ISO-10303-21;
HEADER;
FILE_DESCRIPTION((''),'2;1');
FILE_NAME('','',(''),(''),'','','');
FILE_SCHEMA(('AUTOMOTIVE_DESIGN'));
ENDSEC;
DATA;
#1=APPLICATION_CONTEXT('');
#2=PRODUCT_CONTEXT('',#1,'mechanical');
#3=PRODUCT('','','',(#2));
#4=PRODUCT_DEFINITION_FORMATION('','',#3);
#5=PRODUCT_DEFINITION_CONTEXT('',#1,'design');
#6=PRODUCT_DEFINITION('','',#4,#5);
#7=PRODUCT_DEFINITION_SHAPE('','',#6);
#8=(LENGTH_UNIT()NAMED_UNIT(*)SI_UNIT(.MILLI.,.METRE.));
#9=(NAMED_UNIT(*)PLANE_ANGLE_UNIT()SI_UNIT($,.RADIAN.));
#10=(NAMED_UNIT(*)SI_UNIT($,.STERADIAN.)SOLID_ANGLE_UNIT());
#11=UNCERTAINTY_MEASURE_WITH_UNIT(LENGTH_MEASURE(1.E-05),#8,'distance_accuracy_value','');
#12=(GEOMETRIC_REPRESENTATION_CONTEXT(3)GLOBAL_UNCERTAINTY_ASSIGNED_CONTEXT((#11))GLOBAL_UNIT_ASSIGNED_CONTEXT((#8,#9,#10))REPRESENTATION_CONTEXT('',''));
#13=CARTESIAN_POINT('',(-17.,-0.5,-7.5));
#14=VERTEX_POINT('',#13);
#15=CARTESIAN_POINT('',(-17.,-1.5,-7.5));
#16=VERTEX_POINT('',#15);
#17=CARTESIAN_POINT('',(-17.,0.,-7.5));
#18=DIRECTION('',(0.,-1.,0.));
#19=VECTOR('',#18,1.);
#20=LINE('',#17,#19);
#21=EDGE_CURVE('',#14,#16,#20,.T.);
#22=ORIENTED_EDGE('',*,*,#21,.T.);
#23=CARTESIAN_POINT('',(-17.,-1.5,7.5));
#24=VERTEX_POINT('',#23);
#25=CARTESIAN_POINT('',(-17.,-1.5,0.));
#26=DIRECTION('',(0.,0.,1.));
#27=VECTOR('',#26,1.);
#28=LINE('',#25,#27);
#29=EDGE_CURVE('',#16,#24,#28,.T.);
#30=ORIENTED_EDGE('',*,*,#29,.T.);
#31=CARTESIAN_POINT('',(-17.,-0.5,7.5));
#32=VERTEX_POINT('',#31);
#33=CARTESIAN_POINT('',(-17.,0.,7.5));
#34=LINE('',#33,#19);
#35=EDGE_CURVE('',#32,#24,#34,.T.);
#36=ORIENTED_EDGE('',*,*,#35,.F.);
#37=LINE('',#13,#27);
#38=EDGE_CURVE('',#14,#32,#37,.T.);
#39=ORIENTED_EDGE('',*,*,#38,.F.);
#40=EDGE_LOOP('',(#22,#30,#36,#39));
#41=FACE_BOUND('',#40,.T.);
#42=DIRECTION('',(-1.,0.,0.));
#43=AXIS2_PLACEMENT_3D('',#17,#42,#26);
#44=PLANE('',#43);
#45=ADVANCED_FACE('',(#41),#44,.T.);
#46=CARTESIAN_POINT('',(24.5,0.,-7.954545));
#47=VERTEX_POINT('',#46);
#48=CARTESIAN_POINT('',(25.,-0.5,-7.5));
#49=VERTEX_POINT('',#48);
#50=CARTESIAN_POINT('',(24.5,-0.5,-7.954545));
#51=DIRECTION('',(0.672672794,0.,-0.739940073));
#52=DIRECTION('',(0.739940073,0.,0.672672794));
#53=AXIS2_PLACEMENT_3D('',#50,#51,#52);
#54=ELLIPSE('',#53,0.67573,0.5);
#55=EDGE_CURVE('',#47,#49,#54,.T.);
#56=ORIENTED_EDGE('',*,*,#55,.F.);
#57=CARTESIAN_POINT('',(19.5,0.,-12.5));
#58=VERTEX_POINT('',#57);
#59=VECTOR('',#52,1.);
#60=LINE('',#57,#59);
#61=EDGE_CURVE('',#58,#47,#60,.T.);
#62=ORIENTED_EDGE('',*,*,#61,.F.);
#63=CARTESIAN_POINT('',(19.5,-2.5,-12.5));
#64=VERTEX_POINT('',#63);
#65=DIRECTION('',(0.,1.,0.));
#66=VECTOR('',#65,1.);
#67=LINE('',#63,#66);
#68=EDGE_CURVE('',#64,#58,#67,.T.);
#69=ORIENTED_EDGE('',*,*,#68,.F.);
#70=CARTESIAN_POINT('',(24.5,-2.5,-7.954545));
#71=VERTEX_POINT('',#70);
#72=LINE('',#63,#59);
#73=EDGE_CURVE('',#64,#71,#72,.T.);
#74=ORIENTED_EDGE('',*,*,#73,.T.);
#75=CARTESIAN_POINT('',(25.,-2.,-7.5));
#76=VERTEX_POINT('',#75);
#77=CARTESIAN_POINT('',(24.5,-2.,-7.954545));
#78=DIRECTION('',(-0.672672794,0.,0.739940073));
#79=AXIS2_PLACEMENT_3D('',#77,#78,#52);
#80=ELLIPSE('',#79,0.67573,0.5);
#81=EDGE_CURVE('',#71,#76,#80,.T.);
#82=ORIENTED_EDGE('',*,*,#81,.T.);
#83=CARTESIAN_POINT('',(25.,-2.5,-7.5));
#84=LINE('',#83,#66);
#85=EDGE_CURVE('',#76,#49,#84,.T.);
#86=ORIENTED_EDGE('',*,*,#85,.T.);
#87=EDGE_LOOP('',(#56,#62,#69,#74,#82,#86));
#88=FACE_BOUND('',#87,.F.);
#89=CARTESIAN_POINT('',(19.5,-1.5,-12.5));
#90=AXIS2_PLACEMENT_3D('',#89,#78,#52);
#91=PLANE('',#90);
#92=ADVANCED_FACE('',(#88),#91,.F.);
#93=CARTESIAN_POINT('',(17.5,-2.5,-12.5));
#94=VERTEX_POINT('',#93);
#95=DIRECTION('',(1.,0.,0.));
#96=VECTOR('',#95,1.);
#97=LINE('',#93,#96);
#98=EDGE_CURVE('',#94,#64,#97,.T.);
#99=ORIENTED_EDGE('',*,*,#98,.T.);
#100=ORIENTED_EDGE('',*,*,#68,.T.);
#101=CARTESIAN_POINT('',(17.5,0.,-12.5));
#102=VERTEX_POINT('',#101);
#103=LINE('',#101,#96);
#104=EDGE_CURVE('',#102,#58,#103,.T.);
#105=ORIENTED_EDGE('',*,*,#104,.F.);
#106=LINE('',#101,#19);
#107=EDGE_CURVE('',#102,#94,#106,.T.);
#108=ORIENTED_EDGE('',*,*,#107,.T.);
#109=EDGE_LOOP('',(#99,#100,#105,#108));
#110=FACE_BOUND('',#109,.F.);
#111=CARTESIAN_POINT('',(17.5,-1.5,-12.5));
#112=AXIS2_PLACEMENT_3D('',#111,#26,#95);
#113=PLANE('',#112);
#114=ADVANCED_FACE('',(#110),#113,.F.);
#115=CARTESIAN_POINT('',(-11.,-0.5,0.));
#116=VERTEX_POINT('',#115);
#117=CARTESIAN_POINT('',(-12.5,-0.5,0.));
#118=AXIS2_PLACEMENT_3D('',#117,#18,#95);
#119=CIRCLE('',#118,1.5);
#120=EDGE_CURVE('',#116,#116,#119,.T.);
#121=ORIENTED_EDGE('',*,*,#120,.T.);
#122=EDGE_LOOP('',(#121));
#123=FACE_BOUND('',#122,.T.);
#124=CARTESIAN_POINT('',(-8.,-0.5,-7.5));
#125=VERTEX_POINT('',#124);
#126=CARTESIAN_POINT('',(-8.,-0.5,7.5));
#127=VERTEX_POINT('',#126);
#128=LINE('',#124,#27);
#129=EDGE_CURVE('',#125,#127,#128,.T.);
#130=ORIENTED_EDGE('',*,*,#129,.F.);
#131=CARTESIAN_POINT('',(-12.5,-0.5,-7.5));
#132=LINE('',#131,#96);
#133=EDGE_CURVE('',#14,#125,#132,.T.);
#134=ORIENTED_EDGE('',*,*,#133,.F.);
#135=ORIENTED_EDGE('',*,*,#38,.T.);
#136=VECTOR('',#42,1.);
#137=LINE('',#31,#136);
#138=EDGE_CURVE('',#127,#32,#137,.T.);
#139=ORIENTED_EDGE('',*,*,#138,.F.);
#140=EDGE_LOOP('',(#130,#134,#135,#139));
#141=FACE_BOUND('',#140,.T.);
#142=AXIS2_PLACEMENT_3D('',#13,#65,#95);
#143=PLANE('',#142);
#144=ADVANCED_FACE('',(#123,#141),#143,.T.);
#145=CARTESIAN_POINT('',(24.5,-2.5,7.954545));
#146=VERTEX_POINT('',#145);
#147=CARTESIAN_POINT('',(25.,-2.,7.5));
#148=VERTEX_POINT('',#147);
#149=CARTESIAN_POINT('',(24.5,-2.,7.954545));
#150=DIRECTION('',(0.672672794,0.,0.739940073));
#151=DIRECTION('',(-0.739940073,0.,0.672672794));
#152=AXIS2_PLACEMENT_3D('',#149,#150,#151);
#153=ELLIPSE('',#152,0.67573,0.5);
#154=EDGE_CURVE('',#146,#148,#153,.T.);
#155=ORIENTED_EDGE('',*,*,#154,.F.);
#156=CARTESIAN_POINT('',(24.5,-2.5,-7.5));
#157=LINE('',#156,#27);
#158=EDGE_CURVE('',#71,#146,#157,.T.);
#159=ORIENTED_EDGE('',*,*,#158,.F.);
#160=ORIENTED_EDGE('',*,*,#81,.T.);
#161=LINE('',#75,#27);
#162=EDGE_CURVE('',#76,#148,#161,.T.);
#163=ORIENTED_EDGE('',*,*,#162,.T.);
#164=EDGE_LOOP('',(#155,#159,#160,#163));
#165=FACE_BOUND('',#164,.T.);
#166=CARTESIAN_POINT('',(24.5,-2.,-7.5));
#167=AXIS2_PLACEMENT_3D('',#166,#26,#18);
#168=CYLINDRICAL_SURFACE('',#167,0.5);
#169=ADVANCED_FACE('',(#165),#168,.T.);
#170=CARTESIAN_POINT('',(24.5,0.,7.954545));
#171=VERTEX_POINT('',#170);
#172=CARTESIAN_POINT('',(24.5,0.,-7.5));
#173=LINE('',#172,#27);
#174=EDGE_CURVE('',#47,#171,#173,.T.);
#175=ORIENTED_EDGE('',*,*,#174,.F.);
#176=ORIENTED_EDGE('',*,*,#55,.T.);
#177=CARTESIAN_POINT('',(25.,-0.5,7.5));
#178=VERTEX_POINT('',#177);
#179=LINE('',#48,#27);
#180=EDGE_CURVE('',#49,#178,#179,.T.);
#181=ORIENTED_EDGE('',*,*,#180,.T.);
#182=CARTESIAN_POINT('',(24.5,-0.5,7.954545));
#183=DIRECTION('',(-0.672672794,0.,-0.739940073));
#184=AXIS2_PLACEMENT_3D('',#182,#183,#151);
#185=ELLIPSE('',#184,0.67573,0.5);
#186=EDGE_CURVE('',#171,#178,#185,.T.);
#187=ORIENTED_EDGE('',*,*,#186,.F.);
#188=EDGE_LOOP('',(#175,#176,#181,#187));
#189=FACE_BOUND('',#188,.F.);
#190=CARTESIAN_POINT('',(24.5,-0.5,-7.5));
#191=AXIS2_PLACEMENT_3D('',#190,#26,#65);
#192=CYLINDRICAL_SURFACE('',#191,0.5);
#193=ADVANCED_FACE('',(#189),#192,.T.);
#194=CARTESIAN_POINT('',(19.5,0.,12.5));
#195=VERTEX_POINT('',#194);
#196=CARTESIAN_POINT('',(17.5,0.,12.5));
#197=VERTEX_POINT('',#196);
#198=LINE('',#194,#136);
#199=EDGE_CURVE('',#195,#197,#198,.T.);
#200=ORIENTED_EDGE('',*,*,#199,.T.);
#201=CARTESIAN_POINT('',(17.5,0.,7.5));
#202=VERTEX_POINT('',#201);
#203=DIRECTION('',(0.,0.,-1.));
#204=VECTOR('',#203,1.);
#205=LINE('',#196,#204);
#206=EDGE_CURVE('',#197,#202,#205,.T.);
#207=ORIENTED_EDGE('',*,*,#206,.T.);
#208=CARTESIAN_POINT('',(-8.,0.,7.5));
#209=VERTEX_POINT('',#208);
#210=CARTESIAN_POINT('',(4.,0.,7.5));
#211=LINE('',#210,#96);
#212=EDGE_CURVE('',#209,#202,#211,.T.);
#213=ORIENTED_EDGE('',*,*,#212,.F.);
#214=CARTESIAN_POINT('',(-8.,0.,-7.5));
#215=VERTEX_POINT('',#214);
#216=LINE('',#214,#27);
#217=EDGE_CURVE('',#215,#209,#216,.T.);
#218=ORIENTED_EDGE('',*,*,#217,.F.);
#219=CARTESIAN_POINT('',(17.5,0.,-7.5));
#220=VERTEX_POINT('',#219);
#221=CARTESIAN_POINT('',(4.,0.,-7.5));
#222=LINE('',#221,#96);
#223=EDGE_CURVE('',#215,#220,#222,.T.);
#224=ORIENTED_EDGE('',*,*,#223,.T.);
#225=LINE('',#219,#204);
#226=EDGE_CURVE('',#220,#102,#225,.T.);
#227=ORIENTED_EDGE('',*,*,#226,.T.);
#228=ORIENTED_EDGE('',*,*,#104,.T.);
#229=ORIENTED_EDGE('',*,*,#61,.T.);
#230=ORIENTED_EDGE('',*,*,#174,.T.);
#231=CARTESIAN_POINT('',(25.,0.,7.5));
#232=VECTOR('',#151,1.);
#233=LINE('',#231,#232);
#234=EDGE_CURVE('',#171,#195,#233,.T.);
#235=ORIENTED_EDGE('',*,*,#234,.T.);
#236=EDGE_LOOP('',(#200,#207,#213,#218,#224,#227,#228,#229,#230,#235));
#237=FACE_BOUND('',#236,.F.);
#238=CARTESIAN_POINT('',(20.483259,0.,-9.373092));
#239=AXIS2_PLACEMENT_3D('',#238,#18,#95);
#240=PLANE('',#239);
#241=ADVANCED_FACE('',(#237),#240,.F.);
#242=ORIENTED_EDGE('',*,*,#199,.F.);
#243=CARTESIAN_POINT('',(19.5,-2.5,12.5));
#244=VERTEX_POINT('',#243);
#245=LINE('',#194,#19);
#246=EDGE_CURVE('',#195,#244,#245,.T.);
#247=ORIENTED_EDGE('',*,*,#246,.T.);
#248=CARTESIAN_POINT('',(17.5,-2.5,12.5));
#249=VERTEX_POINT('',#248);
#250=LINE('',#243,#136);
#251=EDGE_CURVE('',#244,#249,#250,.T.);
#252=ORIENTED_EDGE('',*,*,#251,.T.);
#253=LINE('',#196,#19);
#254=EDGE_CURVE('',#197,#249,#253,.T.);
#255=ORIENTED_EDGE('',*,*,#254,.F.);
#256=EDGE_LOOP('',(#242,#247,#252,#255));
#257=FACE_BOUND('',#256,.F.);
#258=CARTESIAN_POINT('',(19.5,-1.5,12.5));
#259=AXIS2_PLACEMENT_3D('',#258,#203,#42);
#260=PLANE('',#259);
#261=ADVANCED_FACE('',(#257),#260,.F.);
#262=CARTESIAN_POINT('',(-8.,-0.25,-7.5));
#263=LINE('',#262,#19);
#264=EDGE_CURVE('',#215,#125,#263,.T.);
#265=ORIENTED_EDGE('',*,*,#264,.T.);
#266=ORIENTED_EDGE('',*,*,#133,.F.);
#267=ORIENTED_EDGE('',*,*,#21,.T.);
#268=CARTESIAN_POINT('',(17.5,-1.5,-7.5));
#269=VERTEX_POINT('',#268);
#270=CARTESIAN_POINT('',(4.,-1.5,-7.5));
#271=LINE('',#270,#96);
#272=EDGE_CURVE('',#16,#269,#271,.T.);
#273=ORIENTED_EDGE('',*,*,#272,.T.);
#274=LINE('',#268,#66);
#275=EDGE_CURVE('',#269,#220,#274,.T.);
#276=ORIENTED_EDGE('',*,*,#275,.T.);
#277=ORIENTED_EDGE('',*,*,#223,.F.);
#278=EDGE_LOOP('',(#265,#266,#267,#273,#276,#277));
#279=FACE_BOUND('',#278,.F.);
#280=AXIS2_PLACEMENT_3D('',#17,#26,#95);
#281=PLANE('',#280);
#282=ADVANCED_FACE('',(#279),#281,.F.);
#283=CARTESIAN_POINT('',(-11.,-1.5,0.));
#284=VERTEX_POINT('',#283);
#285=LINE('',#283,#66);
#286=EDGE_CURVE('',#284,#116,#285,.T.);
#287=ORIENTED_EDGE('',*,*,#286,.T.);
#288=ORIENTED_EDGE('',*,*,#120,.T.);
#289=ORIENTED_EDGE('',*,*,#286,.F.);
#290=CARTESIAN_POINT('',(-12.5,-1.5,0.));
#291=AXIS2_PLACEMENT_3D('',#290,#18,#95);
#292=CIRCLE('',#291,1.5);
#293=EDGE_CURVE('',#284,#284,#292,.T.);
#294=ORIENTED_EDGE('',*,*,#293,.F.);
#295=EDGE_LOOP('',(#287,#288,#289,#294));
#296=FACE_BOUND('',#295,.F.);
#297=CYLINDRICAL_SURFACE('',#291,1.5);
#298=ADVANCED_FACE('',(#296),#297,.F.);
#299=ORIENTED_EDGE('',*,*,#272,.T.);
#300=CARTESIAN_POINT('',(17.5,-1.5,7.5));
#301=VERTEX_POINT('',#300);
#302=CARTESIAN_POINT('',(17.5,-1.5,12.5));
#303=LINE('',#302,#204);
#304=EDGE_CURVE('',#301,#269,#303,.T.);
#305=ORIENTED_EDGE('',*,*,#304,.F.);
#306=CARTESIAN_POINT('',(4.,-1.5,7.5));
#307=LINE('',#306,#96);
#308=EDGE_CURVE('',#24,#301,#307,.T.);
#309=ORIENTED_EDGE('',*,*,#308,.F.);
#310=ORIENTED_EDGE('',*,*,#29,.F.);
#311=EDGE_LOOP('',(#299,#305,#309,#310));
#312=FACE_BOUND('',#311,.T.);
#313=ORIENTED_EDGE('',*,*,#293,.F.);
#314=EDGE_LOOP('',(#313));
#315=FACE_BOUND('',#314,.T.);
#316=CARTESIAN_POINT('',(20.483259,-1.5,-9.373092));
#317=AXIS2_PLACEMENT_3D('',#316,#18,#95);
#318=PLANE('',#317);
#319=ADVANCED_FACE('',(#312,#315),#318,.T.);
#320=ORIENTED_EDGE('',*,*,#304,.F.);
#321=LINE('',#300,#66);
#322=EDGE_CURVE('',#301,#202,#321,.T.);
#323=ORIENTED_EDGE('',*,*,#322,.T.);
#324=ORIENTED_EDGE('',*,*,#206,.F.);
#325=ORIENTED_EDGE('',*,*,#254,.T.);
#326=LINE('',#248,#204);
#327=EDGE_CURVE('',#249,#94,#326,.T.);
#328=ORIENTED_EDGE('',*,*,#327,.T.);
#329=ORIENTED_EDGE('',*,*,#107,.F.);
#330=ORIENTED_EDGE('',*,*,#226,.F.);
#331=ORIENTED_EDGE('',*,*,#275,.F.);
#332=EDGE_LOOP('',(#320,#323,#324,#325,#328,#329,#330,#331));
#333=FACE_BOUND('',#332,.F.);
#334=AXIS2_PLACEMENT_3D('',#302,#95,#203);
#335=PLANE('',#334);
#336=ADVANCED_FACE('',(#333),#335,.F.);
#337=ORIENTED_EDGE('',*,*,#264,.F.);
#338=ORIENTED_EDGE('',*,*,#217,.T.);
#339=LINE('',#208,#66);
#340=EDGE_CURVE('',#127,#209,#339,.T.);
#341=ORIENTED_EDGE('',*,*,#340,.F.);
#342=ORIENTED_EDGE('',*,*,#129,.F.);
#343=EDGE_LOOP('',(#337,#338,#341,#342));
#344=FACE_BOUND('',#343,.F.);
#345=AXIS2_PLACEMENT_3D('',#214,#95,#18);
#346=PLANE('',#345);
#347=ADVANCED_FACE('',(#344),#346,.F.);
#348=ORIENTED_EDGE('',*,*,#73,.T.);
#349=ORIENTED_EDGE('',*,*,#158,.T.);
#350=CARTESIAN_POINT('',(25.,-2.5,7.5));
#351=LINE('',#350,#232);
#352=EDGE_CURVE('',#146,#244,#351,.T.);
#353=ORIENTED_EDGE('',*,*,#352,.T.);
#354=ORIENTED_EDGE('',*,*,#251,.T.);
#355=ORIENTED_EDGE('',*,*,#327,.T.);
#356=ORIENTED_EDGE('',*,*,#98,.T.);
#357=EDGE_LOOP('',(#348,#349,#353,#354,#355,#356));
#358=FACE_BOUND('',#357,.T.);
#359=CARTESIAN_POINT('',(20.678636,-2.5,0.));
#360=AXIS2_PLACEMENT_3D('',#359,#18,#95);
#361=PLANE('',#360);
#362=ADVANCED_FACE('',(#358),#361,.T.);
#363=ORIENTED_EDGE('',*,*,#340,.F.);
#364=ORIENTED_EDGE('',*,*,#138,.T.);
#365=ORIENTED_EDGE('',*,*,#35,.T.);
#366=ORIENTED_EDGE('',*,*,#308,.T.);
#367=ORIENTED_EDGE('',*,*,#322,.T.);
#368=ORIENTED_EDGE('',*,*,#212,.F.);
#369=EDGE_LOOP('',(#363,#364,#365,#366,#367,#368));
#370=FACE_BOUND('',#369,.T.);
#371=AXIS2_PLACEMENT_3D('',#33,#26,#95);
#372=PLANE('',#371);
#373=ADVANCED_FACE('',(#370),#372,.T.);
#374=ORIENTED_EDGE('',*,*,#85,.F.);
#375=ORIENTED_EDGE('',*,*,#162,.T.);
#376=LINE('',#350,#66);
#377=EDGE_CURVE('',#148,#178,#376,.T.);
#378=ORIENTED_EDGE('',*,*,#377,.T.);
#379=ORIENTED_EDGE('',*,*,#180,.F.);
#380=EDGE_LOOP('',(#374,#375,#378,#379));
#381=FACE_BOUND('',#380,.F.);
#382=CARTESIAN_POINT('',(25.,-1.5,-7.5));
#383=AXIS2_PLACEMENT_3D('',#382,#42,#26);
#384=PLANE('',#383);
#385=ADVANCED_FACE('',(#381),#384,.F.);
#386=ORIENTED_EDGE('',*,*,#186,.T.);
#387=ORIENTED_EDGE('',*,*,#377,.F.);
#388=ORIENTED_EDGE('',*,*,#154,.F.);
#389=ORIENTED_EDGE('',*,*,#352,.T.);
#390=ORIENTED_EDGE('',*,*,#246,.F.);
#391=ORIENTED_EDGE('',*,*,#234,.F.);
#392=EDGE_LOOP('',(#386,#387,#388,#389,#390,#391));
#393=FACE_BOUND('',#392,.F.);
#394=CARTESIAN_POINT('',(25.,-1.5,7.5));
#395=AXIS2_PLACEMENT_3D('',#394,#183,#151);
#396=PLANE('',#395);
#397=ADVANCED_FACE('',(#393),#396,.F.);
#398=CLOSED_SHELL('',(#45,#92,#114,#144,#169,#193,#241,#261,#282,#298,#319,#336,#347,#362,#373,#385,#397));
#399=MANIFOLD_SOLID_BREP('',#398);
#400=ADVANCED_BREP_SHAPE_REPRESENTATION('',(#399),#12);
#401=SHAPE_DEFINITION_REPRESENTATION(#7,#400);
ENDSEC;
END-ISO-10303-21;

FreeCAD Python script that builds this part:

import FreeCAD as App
import Part
import Sketcher
Q = App.Units.Quantity


def edges_at(feature, points):
    """Names of the edges that pass closest to the given points."""
    edges = feature.Shape.Edges
    near = lambda p: min(range(len(edges)), key=lambda i: edges[i].distToShape(Part.Vertex(*p))[0])
    return sorted({f"Edge{near(p) + 1}" for p in points})

doc = App.newDocument("Part")
body = doc.addObject("PartDesign::Body", "Body")

# Sketch on XZ plane
sketch1 = body.newObject("Sketcher::SketchObject", "Sketch")
sketch1.AttachmentSupport = (doc.getObject("XZ_Plane"), [""])
sketch1.MapMode = "FlatFace"
sketch1.addGeometry([
    Part.LineSegment(App.Vector(-17, 8, 0), App.Vector(-17, -8, 0)),
    Part.LineSegment(App.Vector(-17, -8, 0), App.Vector(25, -8, 0)),
    Part.LineSegment(App.Vector(25, -8, 0), App.Vector(25, 8, 0)),
    Part.LineSegment(App.Vector(25, 8, 0), App.Vector(-17, 8, 0)),
], False)
sketch1.addConstraint([
    Sketcher.Constraint("Coincident", 0, 2, 1, 1),
    Sketcher.Constraint("Coincident", 1, 2, 2, 1),
    Sketcher.Constraint("Coincident", 2, 2, 3, 1),
    Sketcher.Constraint("Coincident", 3, 2, 0, 1),
    Sketcher.Constraint("Vertical", 0),
    Sketcher.Constraint("Horizontal", 1),
    Sketcher.Constraint("Vertical", 2),
    Sketcher.Constraint("Horizontal", 3),
    Sketcher.Constraint("DistanceX", 1, 1, 1, 2, Q("42 mm")),
    Sketcher.Constraint("DistanceY", 0, 2, 0, 1, Q("15 mm")),
    Sketcher.Constraint("DistanceX", 0, 2, -1, 1, Q("17 mm")),
    Sketcher.Constraint("DistanceY", 0, 2, -1, 1, Q("7.5 mm")),
])
pad1 = body.newObject("PartDesign::Pad", "Pad")
pad1.Profile = sketch1
pad1.Length = 1.5

# Sketch on XZ plane
sketch2 = body.newObject("Sketcher::SketchObject", "Sketch001")
sketch2.AttachmentSupport = (doc.getObject("XZ_Plane"), [""])
sketch2.MapMode = "FlatFace"
sketch2.AttachmentOffset = App.Placement(App.Vector(0, 0, 1.5), App.Rotation())
sketch2.addGeometry(Part.Circle(App.Vector(-12.5, 0, 0), App.Vector(0, 0, 1), 1.5), False)
sketch2.addConstraint([
    Sketcher.Constraint("PointOnObject", 0, 3, -1),
    Sketcher.Constraint("Diameter", 0, Q("3 mm")),
    Sketcher.Constraint("DistanceX", 0, 3, -1, 1, Q("12.5 mm")),
])
pocket1 = body.newObject("PartDesign::Pocket", "Pocket")
pocket1.Profile = sketch2
pocket1.Type = "ThroughAll"

# Sketch on XZ plane
sketch3 = body.newObject("Sketcher::SketchObject", "Sketch002")
sketch3.AttachmentSupport = (doc.getObject("XZ_Plane"), [""])
sketch3.MapMode = "FlatFace"
sketch3.AttachmentOffset = App.Placement(App.Vector(0, 0, 1.5), App.Rotation())
sketch3.addGeometry([
    Part.LineSegment(App.Vector(19.5, -12.5, 0), App.Vector(25, -7.5, 0)),  # 0
    Part.LineSegment(App.Vector(25, -7.5, 0), App.Vector(17.5, -7.5, 0)),  # 1
    Part.LineSegment(App.Vector(17.5, -7.5, 0), App.Vector(17.5, -12.5, 0)),  # 2
    Part.LineSegment(App.Vector(17.5, -12.5, 0), App.Vector(19.5, -12.5, 0)),  # 3
    Part.LineSegment(App.Vector(17.5, 7.5, 0), App.Vector(25, 7.5, 0)),  # 4
    Part.LineSegment(App.Vector(25, 7.5, 0), App.Vector(19.5, 12.5, 0)),  # 5
    Part.LineSegment(App.Vector(19.5, 12.5, 0), App.Vector(17.5, 12.5, 0)),  # 6
    Part.LineSegment(App.Vector(17.5, 12.5, 0), App.Vector(17.5, 7.5, 0)),  # 7
], False)
sketch3.addConstraint([
    Sketcher.Constraint("Coincident", 0, 2, 1, 1),
    Sketcher.Constraint("Coincident", 1, 2, 2, 1),
    Sketcher.Constraint("Coincident", 2, 2, 3, 1),
    Sketcher.Constraint("Coincident", 3, 2, 0, 1),
    Sketcher.Constraint("Coincident", 4, 2, 5, 1),
    Sketcher.Constraint("Coincident", 5, 2, 6, 1),
    Sketcher.Constraint("Coincident", 6, 2, 7, 1),
    Sketcher.Constraint("Coincident", 7, 2, 4, 1),
    Sketcher.Constraint("Horizontal", 1),
    Sketcher.Constraint("Vertical", 2),
    Sketcher.Constraint("Horizontal", 3),
    Sketcher.Constraint("Horizontal", 4),
    Sketcher.Constraint("Horizontal", 6),
    Sketcher.Constraint("Vertical", 7),
    Sketcher.Constraint("Symmetric", 0, 2, 4, 2, -1),
    Sketcher.Constraint("Symmetric", 3, 2, 5, 2, -1),
    Sketcher.Constraint("Vertical", 2, 2, 6, 2),
    Sketcher.Constraint("DistanceX", 3, 1, 3, 2, Q("2 mm")),
    Sketcher.Constraint("DistanceY", 2, 2, 2, 1, Q("5 mm")),
    Sketcher.Constraint("DistanceX", 1, 2, 1, 1, Q("7.5 mm")),
    Sketcher.Constraint("DistanceX", -1, 1, 0, 2, Q("25 mm")),
    Sketcher.Constraint("DistanceY", 0, 2, 4, 2, Q("15 mm")),
])
pad2 = body.newObject("PartDesign::Pad", "Pad001")
pad2.Profile = sketch3
pad2.Type = "UpToLast"
pad2.Reversed = True

# Sketch on XY plane
sketch4 = body.newObject("Sketcher::SketchObject", "Sketch003")
sketch4.AttachmentSupport = (doc.getObject("XY_Plane"), [""])
sketch4.MapMode = "FlatFace"
sketch4.AttachmentOffset = App.Placement(App.Vector(0, 0, -7.5), App.Rotation())
sketch4.addGeometry([
    Part.LineSegment(App.Vector(-17, -0.5, 0), App.Vector(-17, 0, 0)),
    Part.LineSegment(App.Vector(-17, 0, 0), App.Vector(-8, 0, 0)),
    Part.LineSegment(App.Vector(-8, 0, 0), App.Vector(-8, -0.5, 0)),
    Part.LineSegment(App.Vector(-8, -0.5, 0), App.Vector(-17, -0.5, 0)),
], False)
sketch4.addConstraint([
    Sketcher.Constraint("Coincident", 0, 2, 1, 1),
    Sketcher.Constraint("Coincident", 1, 2, 2, 1),
    Sketcher.Constraint("Coincident", 2, 2, 3, 1),
    Sketcher.Constraint("Coincident", 3, 2, 0, 1),
    Sketcher.Constraint("Vertical", 0),
    Sketcher.Constraint("Horizontal", 1),
    Sketcher.Constraint("Vertical", 2),
    Sketcher.Constraint("Horizontal", 3),
    Sketcher.Constraint("PointOnObject", 0, 2, -1),
    Sketcher.Constraint("DistanceX", 1, 1, 1, 2, Q("9 mm")),
    Sketcher.Constraint("DistanceY", 0, 1, 0, 2, Q("0.5 mm")),
    Sketcher.Constraint("DistanceX", 0, 2, -1, 1, Q("17 mm")),
])
pocket2 = body.newObject("PartDesign::Pocket", "Pocket001")
pocket2.Profile = sketch4
pocket2.Type = "ThroughAll"
pocket2.Reversed = True

# Sketch on XZ plane
sketch5 = body.newObject("Sketcher::SketchObject", "Sketch004")
sketch5.AttachmentSupport = (doc.getObject("XZ_Plane"), [""])
sketch5.MapMode = "FlatFace"
sketch5.AttachmentOffset = App.Placement(App.Vector(0, 0, 1.5), App.Rotation())
sketch5.addGeometry([
    Part.LineSegment(App.Vector(25, 7.5, 0), App.Vector(19.5, 12.5, 0)),  # 0
    Part.LineSegment(App.Vector(19.5, 12.5, 0), App.Vector(17.5, 12.5, 0)),  # 1
    Part.LineSegment(App.Vector(17.5, 12.5, 0), App.Vector(17.5, -12.5, 0)),  # 2
    Part.LineSegment(App.Vector(17.5, -12.5, 0), App.Vector(19.5, -12.5, 0)),  # 3
    Part.LineSegment(App.Vector(19.5, -12.5, 0), App.Vector(25, -7.5, 0)),  # 4
    Part.LineSegment(App.Vector(25, -7.5, 0), App.Vector(25, 7.5, 0)),  # 5
], False)
sketch5.addConstraint([
    Sketcher.Constraint("Coincident", 0, 2, 1, 1),
    Sketcher.Constraint("Coincident", 1, 2, 2, 1),
    Sketcher.Constraint("Coincident", 2, 2, 3, 1),
    Sketcher.Constraint("Coincident", 3, 2, 4, 1),
    Sketcher.Constraint("Coincident", 4, 2, 5, 1),
    Sketcher.Constraint("Coincident", 5, 2, 0, 1),
    Sketcher.Constraint("Horizontal", 1),
    Sketcher.Constraint("Vertical", 2),
    Sketcher.Constraint("Horizontal", 3),
    Sketcher.Constraint("Vertical", 5),
    Sketcher.Constraint("Symmetric", 0, 2, 3, 2, -1),
    Sketcher.Constraint("Equal", 0, 4),
    Sketcher.Constraint("DistanceX", 1, 2, 1, 1, Q("2 mm")),
    Sketcher.Constraint("DistanceY", 2, 2, 2, 1, Q("25 mm")),
    Sketcher.Constraint("DistanceY", 5, 1, 5, 2, Q("15 mm")),
    Sketcher.Constraint("DistanceX", -1, 1, 4, 2, Q("25 mm")),
    Sketcher.Constraint("DistanceX", -1, 1, 0, 2, Q("19.5 mm")),
])
pad3 = body.newObject("PartDesign::Pad", "Pad002")
pad3.Profile = sketch5
pad3.Length = 1
doc.recompute()

fillet = body.newObject("PartDesign::Fillet", "Fillet")
fillet.Base = (pad3, edges_at(pad3, [(25, -2.5, 0), (25, 0, 0)]))
fillet.Radius = 0.5

doc.recompute()
